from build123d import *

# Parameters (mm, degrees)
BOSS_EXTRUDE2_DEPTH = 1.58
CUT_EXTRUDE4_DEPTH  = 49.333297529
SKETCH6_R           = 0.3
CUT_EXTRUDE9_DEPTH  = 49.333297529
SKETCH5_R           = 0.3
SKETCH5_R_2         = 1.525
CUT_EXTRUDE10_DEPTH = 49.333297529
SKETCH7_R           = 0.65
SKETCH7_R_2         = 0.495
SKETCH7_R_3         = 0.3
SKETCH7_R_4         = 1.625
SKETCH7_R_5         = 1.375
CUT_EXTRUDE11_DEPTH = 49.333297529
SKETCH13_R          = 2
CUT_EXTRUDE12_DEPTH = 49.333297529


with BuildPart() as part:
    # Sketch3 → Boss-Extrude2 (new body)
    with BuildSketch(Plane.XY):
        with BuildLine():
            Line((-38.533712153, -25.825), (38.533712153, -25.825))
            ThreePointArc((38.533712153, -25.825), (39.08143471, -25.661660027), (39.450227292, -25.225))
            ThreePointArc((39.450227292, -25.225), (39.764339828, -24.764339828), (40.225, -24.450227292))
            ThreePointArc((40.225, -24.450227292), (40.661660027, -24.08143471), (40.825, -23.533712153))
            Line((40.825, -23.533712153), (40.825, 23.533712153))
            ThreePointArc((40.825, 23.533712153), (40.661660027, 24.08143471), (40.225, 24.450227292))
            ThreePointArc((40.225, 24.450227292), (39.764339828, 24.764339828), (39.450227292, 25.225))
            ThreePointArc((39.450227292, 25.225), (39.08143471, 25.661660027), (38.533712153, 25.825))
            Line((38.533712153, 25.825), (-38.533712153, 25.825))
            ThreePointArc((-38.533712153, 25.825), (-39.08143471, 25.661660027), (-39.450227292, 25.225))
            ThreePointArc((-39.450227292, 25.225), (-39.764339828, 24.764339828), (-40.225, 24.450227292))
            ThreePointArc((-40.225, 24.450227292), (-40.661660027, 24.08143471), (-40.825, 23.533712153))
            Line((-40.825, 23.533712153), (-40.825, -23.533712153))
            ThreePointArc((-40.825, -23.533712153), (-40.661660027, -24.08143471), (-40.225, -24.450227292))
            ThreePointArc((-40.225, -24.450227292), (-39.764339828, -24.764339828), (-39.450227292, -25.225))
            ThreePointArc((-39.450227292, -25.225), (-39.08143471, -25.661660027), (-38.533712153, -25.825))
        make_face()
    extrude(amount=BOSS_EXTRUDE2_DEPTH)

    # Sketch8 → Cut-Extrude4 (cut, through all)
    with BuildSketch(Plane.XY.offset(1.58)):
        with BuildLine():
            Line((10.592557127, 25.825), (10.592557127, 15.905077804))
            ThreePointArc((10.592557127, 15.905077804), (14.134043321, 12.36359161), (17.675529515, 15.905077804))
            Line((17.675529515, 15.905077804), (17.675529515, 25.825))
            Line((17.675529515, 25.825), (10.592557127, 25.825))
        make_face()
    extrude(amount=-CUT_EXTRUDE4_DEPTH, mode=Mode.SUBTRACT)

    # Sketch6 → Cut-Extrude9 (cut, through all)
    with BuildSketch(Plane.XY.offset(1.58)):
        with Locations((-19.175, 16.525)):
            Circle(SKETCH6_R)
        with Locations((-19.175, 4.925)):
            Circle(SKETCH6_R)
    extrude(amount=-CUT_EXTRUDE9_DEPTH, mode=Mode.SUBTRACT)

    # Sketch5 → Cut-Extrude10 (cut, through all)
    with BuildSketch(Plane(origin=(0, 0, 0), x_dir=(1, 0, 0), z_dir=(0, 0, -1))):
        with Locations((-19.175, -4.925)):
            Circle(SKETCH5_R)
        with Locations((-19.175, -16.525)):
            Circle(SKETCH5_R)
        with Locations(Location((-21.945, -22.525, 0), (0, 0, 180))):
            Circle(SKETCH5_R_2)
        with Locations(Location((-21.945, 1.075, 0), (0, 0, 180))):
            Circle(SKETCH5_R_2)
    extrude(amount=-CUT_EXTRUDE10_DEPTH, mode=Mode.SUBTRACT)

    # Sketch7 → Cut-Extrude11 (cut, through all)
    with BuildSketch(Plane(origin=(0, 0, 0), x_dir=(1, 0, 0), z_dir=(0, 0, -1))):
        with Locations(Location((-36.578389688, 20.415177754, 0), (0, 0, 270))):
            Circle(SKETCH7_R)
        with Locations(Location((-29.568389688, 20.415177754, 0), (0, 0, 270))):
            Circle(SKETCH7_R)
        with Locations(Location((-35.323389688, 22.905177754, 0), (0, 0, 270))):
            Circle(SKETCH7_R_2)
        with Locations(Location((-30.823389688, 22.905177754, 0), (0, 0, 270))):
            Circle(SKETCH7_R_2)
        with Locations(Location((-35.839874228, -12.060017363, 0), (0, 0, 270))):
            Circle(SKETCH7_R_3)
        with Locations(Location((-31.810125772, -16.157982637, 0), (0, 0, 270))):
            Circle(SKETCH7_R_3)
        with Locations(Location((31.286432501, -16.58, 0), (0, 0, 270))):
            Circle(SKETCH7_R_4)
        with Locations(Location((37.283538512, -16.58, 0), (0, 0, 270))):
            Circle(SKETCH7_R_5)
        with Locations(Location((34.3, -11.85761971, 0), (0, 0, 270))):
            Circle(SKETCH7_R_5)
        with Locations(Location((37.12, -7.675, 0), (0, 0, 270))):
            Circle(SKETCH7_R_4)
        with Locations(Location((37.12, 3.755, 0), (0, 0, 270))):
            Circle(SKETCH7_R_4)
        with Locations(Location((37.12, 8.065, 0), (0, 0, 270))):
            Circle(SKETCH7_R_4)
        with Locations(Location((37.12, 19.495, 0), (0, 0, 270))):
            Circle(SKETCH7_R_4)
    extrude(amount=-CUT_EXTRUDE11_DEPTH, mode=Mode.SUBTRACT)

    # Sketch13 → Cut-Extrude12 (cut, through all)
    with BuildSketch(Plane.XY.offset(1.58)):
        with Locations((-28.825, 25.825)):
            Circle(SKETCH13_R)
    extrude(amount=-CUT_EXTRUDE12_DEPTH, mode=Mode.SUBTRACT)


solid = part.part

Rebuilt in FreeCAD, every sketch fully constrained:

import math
import FreeCAD as App
import Part
import Sketcher
from FreeCAD import Vector
Q = App.Units.Quantity

doc = App.newDocument("Part")
params = doc.addObject("Spreadsheet::Sheet", "Params")
for row, (alias, value) in enumerate([
    ("sketch1_radius", "1 mm"),
    ("sketch1_radius2", "1.5 mm"),
    ("pad1_length", "1.58 mm"),
    ("sketch3_diameter", "0.6 mm"),
    ("sketch4_diameter", "0.6 mm"),
    ("sketch4_diameter2", "3.05 mm"),
    ("sketch5_diameter", "1.3 mm"),
    ("sketch5_diameter2", "0.6 mm"),
    ("sketch5_diameter3", "0.99 mm"),
    ("sketch5_diameter4", "3.25 mm"),
    ("sketch5_diameter5", "2.75 mm"),
    ("sketch6_diameter", "4 mm"),
], start=1):
    params.set(f"A{row}", alias)
    params.set(f"B{row}", "=" + value)
    params.setAlias(f"B{row}", alias)

body = doc.addObject("PartDesign::Body", "Body")

# Sketch on XY plane
sketch1 = doc.addObject("Sketcher::SketchObject", "Sketch")
body.addObject(sketch1)
sketch1.AttachmentSupport = (doc.XY_Plane, [""])
sketch1.MapMode = "FlatFace"
sketch1.addGeometry([
    Part.LineSegment(Vector(-38.533712, -25.825, 0), Vector(38.533712, -25.825, 0)),  # 0
    Part.ArcOfCircle(Part.Circle(Vector(38.533712, -24.825, 0), Vector(0, 0, 1), 1), math.radians(-90), math.radians(-23.578178)),  # 1
    Part.ArcOfCircle(Part.Circle(Vector(40.825, -25.825, 0), Vector(0, 0, 1), 1.5), math.radians(113.578178), math.radians(156.421822)),  # 2
    Part.ArcOfCircle(Part.Circle(Vector(39.825, -23.533712, 0), Vector(0, 0, 1), 1), math.radians(-66.421822), math.radians(0)),  # 3
    Part.LineSegment(Vector(40.825, -23.533712, 0), Vector(40.825, 23.533712, 0)),  # 4
    Part.ArcOfCircle(Part.Circle(Vector(39.825, 23.533712, 0), Vector(0, 0, 1), 1), math.radians(0), math.radians(66.421822)),  # 5
    Part.ArcOfCircle(Part.Circle(Vector(40.825, 25.825, 0), Vector(0, 0, 1), 1.5), math.radians(-156.421822), math.radians(-113.578178)),  # 6
    Part.ArcOfCircle(Part.Circle(Vector(38.533712, 24.825, 0), Vector(0, 0, 1), 1), math.radians(23.578178), math.radians(90)),  # 7
    Part.LineSegment(Vector(38.533712, 25.825, 0), Vector(-38.533712, 25.825, 0)),  # 8
    Part.ArcOfCircle(Part.Circle(Vector(-38.533712, 24.825, 0), Vector(0, 0, 1), 1), math.radians(90), math.radians(156.421822)),  # 9
    Part.ArcOfCircle(Part.Circle(Vector(-40.825, 25.825, 0), Vector(0, 0, 1), 1.5), math.radians(-66.421822), math.radians(-23.578178)),  # 10
    Part.ArcOfCircle(Part.Circle(Vector(-39.825, 23.533712, 0), Vector(0, 0, 1), 1), math.radians(113.578178), math.radians(180)),  # 11
    Part.LineSegment(Vector(-40.825, 23.533712, 0), Vector(-40.825, -23.533712, 0)),  # 12
    Part.ArcOfCircle(Part.Circle(Vector(-39.825, -23.533712, 0), Vector(0, 0, 1), 1), math.radians(180), math.radians(246.421822)),  # 13
    Part.ArcOfCircle(Part.Circle(Vector(-40.825, -25.825, 0), Vector(0, 0, 1), 1.5), math.radians(23.578178), math.radians(66.421822)),  # 14
    Part.ArcOfCircle(Part.Circle(Vector(-38.533712, -24.825, 0), Vector(0, 0, 1), 1), math.radians(-156.421822), math.radians(-90)),  # 15
], False)
sketch1.addConstraint([
    Sketcher.Constraint("Tangent", 0, 2, 1, 1),
    Sketcher.Constraint("Tangent", 1, 2, 2, 2),
    Sketcher.Constraint("Tangent", 2, 1, 3, 1),
    Sketcher.Constraint("Tangent", 3, 2, 4, 1),
    Sketcher.Constraint("Tangent", 4, 2, 5, 1),
    Sketcher.Constraint("Tangent", 5, 2, 6, 2),
    Sketcher.Constraint("Tangent", 6, 1, 7, 1),
    Sketcher.Constraint("Tangent", 7, 2, 8, 1),
    Sketcher.Constraint("Tangent", 8, 2, 9, 1),
    Sketcher.Constraint("Tangent", 9, 2, 10, 2),
    Sketcher.Constraint("Tangent", 10, 1, 11, 1),
    Sketcher.Constraint("Tangent", 11, 2, 12, 1),
    Sketcher.Constraint("Tangent", 12, 2, 13, 1),
    Sketcher.Constraint("Tangent", 13, 2, 14, 2),
    Sketcher.Constraint("Tangent", 14, 1, 15, 1),
    Sketcher.Constraint("Tangent", 15, 2, 0, 1),
    Sketcher.Constraint("Horizontal", 0),
    Sketcher.Constraint("Vertical", 4),
    Sketcher.Constraint("Horizontal", 8),
    Sketcher.Constraint("Vertical", 12),
    Sketcher.Constraint("Equal", 1, 3),
    Sketcher.Constraint("Equal", 3, 5),
    Sketcher.Constraint("Equal", 2, 6),
    Sketcher.Constraint("Equal", 5, 7),
    Sketcher.Constraint("Equal", 7, 9),
    Sketcher.Constraint("Equal", 6, 10),
    Sketcher.Constraint("Equal", 9, 11),
    Sketcher.Constraint("Equal", 11, 13),
    Sketcher.Constraint("Equal", 10, 14),
    Sketcher.Constraint("Equal", 13, 15),
    Sketcher.Constraint("Symmetric", 1, 3, 9, 3, -1, 1),
    Sketcher.Constraint("Symmetric", 3, 3, 11, 3, -1, 1),
    Sketcher.Constraint("Symmetric", 6, 3, 14, 3, -1, 1),
    Sketcher.Constraint("Symmetric", 6, 3, 10, 3, -2),
    Sketcher.Constraint("Horizontal", 14, 3, 0, 2),
    Sketcher.Constraint("Vertical", 6, 3, 3, 2),
    Sketcher.Constraint("Radius", 1, Q("1 mm")),
    Sketcher.Constraint("Radius", 2, Q("1.5 mm")),
    Sketcher.Constraint("DistanceY", 1, 3, 6, 3, Q("50.65 mm")),
    Sketcher.Constraint("DistanceX", 10, 3, 5, 3, Q("80.65 mm")),
])
sketch1.setExpression("Constraints[36]", "Params.sketch1_radius")
sketch1.setExpression("Constraints[37]", "Params.sketch1_radius2")
pad1 = doc.addObject("PartDesign::Pad", "Pad")
body.addObject(pad1)
pad1.Profile = sketch1
pad1.setExpression("Length", "Params.pad1_length")

# Sketch on XY plane
sketch2 = doc.addObject("Sketcher::SketchObject", "Sketch001")
body.addObject(sketch2)
sketch2.AttachmentSupport = (doc.XY_Plane, [""])
sketch2.MapMode = "FlatFace"
sketch2.AttachmentOffset = App.Placement(Vector(0, 0, 1.58), App.Rotation())
sketch2.addGeometry([
    Part.LineSegment(Vector(10.592557, 25.825, 0), Vector(10.592557, 15.905078, 0)),
    Part.ArcOfCircle(Part.Circle(Vector(14.134043, 15.905078, 0), Vector(0, 0, 1), 3.541486), math.radians(180), math.radians(360)),
    Part.LineSegment(Vector(17.67553, 15.905078, 0), Vector(17.67553, 25.825, 0)),
    Part.LineSegment(Vector(17.67553, 25.825, 0), Vector(10.592557, 25.825, 0)),
], False)
sketch2.addConstraint([
    Sketcher.Constraint("Tangent", 0, 2, 1, 1),
    Sketcher.Constraint("Tangent", 1, 2, 2, 1),
    Sketcher.Constraint("Coincident", 2, 2, 3, 1),
    Sketcher.Constraint("Coincident", 3, 2, 0, 1),
    Sketcher.Constraint("Vertical", 0),
    Sketcher.Constraint("Vertical", 2),
    Sketcher.Constraint("Horizontal", 3),
    Sketcher.Constraint("DistanceY", -1, 1, 2, 2, Q("25.825 mm")),
    Sketcher.Constraint("Radius", 1, Q("3.541486 mm")),
    Sketcher.Constraint("DistanceY", 0, 2, 0, 1, Q("9.919922 mm")),
    Sketcher.Constraint("DistanceX", -1, 1, 1, 2, Q("17.67553 mm")),
])
pocket1 = doc.addObject("PartDesign::Pocket", "Pocket")
body.addObject(pocket1)
pocket1.Profile = sketch2
pocket1.Type = "ThroughAll"

# Sketch on XY plane
sketch3 = doc.addObject("Sketcher::SketchObject", "Sketch002")
body.addObject(sketch3)
sketch3.AttachmentSupport = (doc.XY_Plane, [""])
sketch3.MapMode = "FlatFace"
sketch3.AttachmentOffset = App.Placement(Vector(0, 0, 1.58), App.Rotation())
sketch3.addGeometry([
    Part.Circle(Vector(-19.175, 16.525, 0), Vector(0, 0, 1), 0.3),
    Part.Circle(Vector(-19.175, 4.925, 0), Vector(0, 0, 1), 0.3),
], False)
sketch3.addConstraint([
    Sketcher.Constraint("Equal", 0, 1),
    Sketcher.Constraint("Vertical", 0, 3, 1, 3),
    Sketcher.Constraint("Diameter", 0, Q("0.6 mm")),
    Sketcher.Constraint("DistanceY", 1, 3, 0, 3, Q("11.6 mm")),
    Sketcher.Constraint("DistanceX", 0, 3, -1, 1, Q("19.175 mm")),
    Sketcher.Constraint("DistanceY", -1, 1, 0, 3, Q("16.525 mm")),
])
sketch3.setExpression("Constraints[2]", "Params.sketch3_diameter")
pocket2 = doc.addObject("PartDesign::Pocket", "Pocket001")
body.addObject(pocket2)
pocket2.Profile = sketch3
pocket2.Type = "ThroughAll"

# Sketch on XY plane
sketch4 = doc.addObject("Sketcher::SketchObject", "Sketch003")
body.addObject(sketch4)
sketch4.AttachmentSupport = (doc.XY_Plane, [""])
sketch4.MapMode = "FlatFace"
sketch4.addGeometry([
    Part.Circle(Vector(-19.175, 4.925, 0), Vector(0, 0, 1), 0.3),
    Part.Circle(Vector(-19.175, 16.525, 0), Vector(0, 0, 1), 0.3),
    Part.Circle(Vector(-21.945, 22.525, 0), Vector(0, 0, 1), 1.525),
    Part.Circle(Vector(-21.945, -1.075, 0), Vector(0, 0, 1), 1.525),
], False)
sketch4.addConstraint([
    Sketcher.Constraint("Equal", 0, 1),
    Sketcher.Constraint("Equal", 2, 3),
    Sketcher.Constraint("Vertical", 0, 3, 1, 3),
    Sketcher.Constraint("Vertical", 2, 3, 3, 3),
    Sketcher.Constraint("Diameter", 0, Q("0.6 mm")),
    Sketcher.Constraint("Diameter", 2, Q("3.05 mm")),
    Sketcher.Constraint("DistanceY", 1, 3, 2, 3, Q("6 mm")),
    Sketcher.Constraint("DistanceY", 3, 3, 0, 3, Q("6 mm")),
    Sketcher.Constraint("DistanceY", 0, 3, 1, 3, Q("11.6 mm")),
    Sketcher.Constraint("DistanceX", 2, 3, 1, 3, Q("2.77 mm")),
    Sketcher.Constraint("DistanceX", 0, 3, -1, 1, Q("19.175 mm")),
    Sketcher.Constraint("DistanceY", -1, 1, 0, 3, Q("4.925 mm")),
])
sketch4.setExpression("Constraints[4]", "Params.sketch4_diameter")
sketch4.setExpression("Constraints[5]", "Params.sketch4_diameter2")
pocket3 = doc.addObject("PartDesign::Pocket", "Pocket002")
body.addObject(pocket3)
pocket3.Profile = sketch4
pocket3.Type = "ThroughAll"
pocket3.Reversed = True

# Sketch on XY plane
sketch5 = doc.addObject("Sketcher::SketchObject", "Sketch004")
body.addObject(sketch5)
sketch5.AttachmentSupport = (doc.XY_Plane, [""])
sketch5.MapMode = "FlatFace"
sketch5.addGeometry([
    Part.Circle(Vector(-36.57839, -20.415178, 0), Vector(0, 0, 1), 0.65),  # 0
    Part.Circle(Vector(-29.56839, -20.415178, 0), Vector(0, 0, 1), 0.65),  # 1
    Part.Circle(Vector(-35.32339, -22.905178, 0), Vector(0, 0, 1), 0.495),  # 2
    Part.Circle(Vector(-30.82339, -22.905178, 0), Vector(0, 0, 1), 0.495),  # 3
    Part.Circle(Vector(-35.839874, 12.060017, 0), Vector(0, 0, 1), 0.3),  # 4
    Part.Circle(Vector(-31.810126, 16.157983, 0), Vector(0, 0, 1), 0.3),  # 5
    Part.Circle(Vector(31.286433, 16.58, 0), Vector(0, 0, 1), 1.625),  # 6
    Part.Circle(Vector(37.283539, 16.58, 0), Vector(0, 0, 1), 1.375),  # 7
    Part.Circle(Vector(34.3, 11.85762, 0), Vector(0, 0, 1), 1.375),  # 8
    Part.Circle(Vector(37.12, 7.675, 0), Vector(0, 0, 1), 1.625),  # 9
    Part.Circle(Vector(37.12, -3.755, 0), Vector(0, 0, 1), 1.625),  # 10
    Part.Circle(Vector(37.12, -8.065, 0), Vector(0, 0, 1), 1.625),  # 11
    Part.Circle(Vector(37.12, -19.495, 0), Vector(0, 0, 1), 1.625),  # 12
], False)
sketch5.addConstraint([
    Sketcher.Constraint("Equal", 0, 1),
    Sketcher.Constraint("Equal", 2, 3),
    Sketcher.Constraint("Equal", 4, 5),
    Sketcher.Constraint("Equal", 7, 8),
    Sketcher.Constraint("Equal", 6, 9),
    Sketcher.Constraint("Equal", 9, 10),
    Sketcher.Constraint("Equal", 10, 11),
    Sketcher.Constraint("Equal", 11, 12),
    Sketcher.Constraint("Horizontal", 0, 3, 1, 3),
    Sketcher.Constraint("Horizontal", 2, 3, 3, 3),
    Sketcher.Constraint("Horizontal", 6, 3, 7, 3),
    Sketcher.Constraint("Vertical", 9, 3, 10, 3),
    Sketcher.Constraint("Vertical", 10, 3, 11, 3),
    Sketcher.Constraint("Vertical", 11, 3, 12, 3),
    Sketcher.Constraint("Diameter", 0, Q("1.3 mm")),
    Sketcher.Constraint("Diameter", 4, Q("0.6 mm")),
    Sketcher.Constraint("Diameter", 2, Q("0.99 mm")),
    Sketcher.Constraint("Diameter", 6, Q("3.25 mm")),
    Sketcher.Constraint("Diameter", 7, Q("2.75 mm")),
    Sketcher.Constraint("DistanceX", -1, 1, 8, 3, Q("34.3 mm")),
    Sketcher.Constraint("DistanceX", 2, 3, 3, 3, Q("4.5 mm")),
    Sketcher.Constraint("DistanceY", -1, 1, 6, 3, Q("16.58 mm")),
    Sketcher.Constraint("DistanceX", -1, 1, 9, 3, Q("37.12 mm")),
    Sketcher.Constraint("DistanceX", 0, 3, 1, 3, Q("7.01 mm")),
    Sketcher.Constraint("DistanceY", 2, 3, 0, 3, Q("2.49 mm")),
    Sketcher.Constraint("DistanceY", 10, 3, 9, 3, Q("11.43 mm")),
    Sketcher.Constraint("DistanceY", 11, 3, 10, 3, Q("4.31 mm")),
    Sketcher.Constraint("DistanceY", 12, 3, 11, 3, Q("11.43 mm")),
    Sketcher.Constraint("DistanceY", -1, 1, 9, 3, Q("7.675 mm")),
    Sketcher.Constraint("DistanceX", 0, 3, 2, 3, Q("1.255 mm")),
    Sketcher.Constraint("DistanceX", 0, 3, -1, 1, Q("36.57839 mm")),
    Sketcher.Constraint("DistanceX", -1, 1, 7, 3, Q("37.283539 mm")),
    Sketcher.Constraint("DistanceY", -1, 1, 8, 3, Q("11.85762 mm")),
    Sketcher.Constraint("DistanceX", 4, 3, 5, 3, Q("4.029748 mm")),
    Sketcher.Constraint("DistanceY", 1, 3, 5, 3, Q("36.57316 mm")),
    Sketcher.Constraint("DistanceX", 5, 3, 6, 3, Q("63.096558 mm")),
    Sketcher.Constraint("DistanceY", 0, 3, -1, 1, Q("20.415178 mm")),
    Sketcher.Constraint("DistanceX", 4, 3, -1, 1, Q("35.839874 mm")),
    Sketcher.Constraint("DistanceY", -1, 1, 4, 3, Q("12.060017 mm")),
])
sketch5.setExpression("Constraints[14]", "Params.sketch5_diameter")
sketch5.setExpression("Constraints[15]", "Params.sketch5_diameter2")
sketch5.setExpression("Constraints[16]", "Params.sketch5_diameter3")
sketch5.setExpression("Constraints[17]", "Params.sketch5_diameter4")
sketch5.setExpression("Constraints[18]", "Params.sketch5_diameter5")
pocket4 = doc.addObject("PartDesign::Pocket", "Pocket003")
body.addObject(pocket4)
pocket4.Profile = sketch5
pocket4.Type = "ThroughAll"
pocket4.Reversed = True

# Sketch on XY plane
sketch6 = doc.addObject("Sketcher::SketchObject", "Sketch005")
body.addObject(sketch6)
sketch6.AttachmentSupport = (doc.XY_Plane, [""])
sketch6.MapMode = "FlatFace"
sketch6.AttachmentOffset = App.Placement(Vector(0, 0, 1.58), App.Rotation())
sketch6.addGeometry(Part.Circle(Vector(-28.825, 25.825, 0), Vector(0, 0, 1), 2), False)
sketch6.addConstraint([
    Sketcher.Constraint("Diameter", 0, Q("4 mm")),
    Sketcher.Constraint("DistanceX", 0, 3, -1, 1, Q("28.825 mm")),
    Sketcher.Constraint("DistanceY", -1, 1, 0, 3, Q("25.825 mm")),
])
sketch6.setExpression("Constraints[0]", "Params.sketch6_diameter")
pocket5 = doc.addObject("PartDesign::Pocket", "Pocket004")
body.addObject(pocket5)
pocket5.Profile = sketch6
pocket5.Type = "ThroughAll"

doc.recompute()
